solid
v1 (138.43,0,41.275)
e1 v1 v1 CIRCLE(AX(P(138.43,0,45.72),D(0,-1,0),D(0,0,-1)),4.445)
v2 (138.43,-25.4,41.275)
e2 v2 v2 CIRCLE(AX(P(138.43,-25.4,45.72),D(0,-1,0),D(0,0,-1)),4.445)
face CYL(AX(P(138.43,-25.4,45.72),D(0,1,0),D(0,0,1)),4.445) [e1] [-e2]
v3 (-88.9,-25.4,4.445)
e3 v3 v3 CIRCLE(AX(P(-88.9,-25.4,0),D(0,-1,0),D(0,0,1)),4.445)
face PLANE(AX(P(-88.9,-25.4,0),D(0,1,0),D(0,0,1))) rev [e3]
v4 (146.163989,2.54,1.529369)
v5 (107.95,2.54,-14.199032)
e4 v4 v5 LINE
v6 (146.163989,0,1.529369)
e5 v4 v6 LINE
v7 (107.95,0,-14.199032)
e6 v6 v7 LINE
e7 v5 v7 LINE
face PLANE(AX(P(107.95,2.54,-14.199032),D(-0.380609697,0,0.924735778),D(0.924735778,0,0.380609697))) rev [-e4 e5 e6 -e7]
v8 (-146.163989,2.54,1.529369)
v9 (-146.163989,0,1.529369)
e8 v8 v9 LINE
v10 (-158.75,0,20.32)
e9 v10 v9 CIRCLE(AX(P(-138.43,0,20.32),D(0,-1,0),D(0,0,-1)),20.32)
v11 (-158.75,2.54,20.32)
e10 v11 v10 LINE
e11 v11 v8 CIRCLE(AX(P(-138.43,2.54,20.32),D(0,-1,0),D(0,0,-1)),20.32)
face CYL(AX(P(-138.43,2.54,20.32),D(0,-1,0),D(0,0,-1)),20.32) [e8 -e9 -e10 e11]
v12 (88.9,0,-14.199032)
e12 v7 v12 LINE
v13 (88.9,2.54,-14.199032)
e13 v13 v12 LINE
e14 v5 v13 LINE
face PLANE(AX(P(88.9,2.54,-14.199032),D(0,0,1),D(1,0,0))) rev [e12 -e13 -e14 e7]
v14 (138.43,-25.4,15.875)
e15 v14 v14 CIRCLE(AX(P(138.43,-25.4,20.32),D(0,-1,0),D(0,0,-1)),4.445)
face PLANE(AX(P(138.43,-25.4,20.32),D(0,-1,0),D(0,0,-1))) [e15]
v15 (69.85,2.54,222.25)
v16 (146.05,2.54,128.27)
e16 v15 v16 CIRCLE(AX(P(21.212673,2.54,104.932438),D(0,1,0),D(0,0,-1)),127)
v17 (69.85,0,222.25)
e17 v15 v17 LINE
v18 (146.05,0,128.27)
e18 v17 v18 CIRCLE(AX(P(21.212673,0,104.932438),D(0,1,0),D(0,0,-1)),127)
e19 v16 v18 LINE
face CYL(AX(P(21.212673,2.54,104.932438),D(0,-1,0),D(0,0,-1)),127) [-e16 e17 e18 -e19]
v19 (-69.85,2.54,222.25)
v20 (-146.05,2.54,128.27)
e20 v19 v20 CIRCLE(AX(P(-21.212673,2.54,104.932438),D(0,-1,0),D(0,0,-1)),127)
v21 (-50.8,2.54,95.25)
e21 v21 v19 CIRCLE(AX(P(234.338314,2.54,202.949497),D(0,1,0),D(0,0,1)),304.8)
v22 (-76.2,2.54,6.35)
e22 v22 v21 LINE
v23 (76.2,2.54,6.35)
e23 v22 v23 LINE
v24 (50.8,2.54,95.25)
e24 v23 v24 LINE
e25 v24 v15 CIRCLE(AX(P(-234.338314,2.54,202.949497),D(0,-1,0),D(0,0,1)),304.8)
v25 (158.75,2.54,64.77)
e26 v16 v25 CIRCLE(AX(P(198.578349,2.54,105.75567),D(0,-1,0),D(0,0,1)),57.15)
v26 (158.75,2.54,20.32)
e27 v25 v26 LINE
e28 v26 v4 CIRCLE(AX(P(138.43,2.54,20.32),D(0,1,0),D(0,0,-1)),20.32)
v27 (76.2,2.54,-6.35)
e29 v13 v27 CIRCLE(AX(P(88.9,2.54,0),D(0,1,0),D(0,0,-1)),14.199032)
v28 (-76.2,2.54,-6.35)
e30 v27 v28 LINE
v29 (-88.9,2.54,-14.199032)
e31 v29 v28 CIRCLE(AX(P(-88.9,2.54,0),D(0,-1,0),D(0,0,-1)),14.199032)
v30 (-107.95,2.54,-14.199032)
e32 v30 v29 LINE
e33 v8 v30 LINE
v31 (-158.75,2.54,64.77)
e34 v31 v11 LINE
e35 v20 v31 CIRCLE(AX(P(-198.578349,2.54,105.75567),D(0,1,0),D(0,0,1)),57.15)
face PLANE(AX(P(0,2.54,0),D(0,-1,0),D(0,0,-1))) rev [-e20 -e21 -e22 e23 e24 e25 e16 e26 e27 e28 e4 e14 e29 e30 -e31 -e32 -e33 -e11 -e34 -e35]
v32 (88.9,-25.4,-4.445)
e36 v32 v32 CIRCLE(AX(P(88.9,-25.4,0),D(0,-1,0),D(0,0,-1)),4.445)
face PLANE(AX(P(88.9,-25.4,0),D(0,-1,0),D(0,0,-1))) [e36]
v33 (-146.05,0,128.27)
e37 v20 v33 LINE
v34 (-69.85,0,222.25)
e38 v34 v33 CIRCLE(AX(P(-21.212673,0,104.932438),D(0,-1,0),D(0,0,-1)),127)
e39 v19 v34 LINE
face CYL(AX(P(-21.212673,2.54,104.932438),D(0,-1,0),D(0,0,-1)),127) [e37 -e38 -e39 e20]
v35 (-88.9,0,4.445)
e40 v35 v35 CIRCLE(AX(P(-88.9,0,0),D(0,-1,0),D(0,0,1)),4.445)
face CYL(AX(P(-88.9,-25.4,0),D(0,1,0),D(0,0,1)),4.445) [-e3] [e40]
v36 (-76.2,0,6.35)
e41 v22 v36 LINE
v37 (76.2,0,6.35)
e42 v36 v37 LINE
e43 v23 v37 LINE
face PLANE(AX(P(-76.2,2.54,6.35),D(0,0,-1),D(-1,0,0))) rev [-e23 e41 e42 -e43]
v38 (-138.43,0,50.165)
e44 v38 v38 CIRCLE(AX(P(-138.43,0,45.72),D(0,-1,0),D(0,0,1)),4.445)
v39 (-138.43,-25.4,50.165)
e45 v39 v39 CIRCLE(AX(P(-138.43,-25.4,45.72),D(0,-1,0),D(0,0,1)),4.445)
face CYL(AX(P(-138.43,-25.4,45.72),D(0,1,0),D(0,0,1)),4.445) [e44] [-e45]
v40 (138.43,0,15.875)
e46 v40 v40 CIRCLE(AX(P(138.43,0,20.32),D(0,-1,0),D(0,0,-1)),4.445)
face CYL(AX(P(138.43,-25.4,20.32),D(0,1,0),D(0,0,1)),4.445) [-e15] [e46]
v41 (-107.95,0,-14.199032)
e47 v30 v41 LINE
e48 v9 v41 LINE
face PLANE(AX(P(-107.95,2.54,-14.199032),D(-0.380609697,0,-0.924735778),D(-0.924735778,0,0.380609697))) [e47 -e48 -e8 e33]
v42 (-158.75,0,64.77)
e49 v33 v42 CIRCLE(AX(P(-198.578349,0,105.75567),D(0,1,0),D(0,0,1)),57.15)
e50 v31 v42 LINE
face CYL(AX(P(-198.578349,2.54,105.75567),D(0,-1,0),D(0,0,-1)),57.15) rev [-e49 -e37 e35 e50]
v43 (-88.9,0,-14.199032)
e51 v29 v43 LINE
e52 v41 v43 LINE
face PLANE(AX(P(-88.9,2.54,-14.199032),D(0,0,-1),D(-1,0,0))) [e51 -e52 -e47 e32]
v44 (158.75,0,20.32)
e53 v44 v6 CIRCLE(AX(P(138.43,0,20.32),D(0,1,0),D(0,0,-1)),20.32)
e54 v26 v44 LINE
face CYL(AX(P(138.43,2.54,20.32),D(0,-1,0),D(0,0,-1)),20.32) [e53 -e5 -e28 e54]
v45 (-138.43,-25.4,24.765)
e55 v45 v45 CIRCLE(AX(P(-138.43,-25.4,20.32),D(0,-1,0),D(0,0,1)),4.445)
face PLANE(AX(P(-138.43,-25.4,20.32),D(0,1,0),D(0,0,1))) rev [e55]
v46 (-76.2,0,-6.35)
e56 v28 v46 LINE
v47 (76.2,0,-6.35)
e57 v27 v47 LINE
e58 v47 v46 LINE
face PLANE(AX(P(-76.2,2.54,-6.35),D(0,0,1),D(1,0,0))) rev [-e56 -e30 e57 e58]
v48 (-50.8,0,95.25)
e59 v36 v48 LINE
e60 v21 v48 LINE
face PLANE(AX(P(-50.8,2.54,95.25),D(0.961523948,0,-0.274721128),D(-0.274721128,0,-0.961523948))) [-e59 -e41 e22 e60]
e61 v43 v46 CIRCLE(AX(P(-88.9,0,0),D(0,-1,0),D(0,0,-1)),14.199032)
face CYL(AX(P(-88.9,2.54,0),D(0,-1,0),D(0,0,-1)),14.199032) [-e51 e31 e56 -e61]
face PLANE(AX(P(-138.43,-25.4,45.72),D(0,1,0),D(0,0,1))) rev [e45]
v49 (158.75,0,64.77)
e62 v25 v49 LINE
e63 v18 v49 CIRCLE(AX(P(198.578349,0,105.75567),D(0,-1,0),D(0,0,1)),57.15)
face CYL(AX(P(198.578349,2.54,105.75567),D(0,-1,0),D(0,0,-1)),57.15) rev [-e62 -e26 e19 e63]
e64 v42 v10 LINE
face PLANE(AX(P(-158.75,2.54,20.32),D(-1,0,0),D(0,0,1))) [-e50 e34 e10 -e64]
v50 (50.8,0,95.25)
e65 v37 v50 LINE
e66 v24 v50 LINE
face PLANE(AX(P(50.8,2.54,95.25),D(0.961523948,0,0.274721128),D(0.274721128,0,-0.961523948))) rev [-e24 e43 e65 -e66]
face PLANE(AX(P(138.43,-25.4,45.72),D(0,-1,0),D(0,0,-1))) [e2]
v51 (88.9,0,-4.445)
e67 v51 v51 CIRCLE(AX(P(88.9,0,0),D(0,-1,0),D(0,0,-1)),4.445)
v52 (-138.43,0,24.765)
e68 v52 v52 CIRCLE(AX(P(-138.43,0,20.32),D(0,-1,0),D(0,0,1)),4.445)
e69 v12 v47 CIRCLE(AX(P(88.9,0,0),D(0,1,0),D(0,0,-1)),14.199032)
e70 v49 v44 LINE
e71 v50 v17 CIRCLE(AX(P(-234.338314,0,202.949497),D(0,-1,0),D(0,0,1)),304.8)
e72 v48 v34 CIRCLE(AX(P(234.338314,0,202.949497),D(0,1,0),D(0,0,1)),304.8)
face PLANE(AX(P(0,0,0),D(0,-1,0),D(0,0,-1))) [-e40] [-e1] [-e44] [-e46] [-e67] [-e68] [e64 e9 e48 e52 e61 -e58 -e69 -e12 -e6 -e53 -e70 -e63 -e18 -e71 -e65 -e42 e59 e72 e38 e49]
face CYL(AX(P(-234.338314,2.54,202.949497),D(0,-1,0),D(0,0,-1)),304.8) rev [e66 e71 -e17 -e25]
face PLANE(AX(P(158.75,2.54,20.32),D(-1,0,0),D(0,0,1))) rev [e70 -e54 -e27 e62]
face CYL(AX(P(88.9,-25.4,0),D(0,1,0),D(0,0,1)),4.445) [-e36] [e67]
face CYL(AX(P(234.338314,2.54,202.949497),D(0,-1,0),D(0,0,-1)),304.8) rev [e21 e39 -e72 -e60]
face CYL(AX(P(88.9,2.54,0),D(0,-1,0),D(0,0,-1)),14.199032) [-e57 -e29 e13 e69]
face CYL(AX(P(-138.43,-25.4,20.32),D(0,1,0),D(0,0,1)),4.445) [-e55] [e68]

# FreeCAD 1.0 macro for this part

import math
import FreeCAD as App
import Part
import Sketcher
Q = App.Units.Quantity

doc = App.newDocument("Part")
params = doc.addObject("Spreadsheet::Sheet", "Params")
for row, (alias, value) in enumerate([
    ("sketch1_width", "6 in"),
    ("sketch1_height", "0.5 in"),
    ("pad1_length", "0.1 in"),
    ("sketch2_radius", "12 in"),
    ("sketch2_radius2", "5 in"),
    ("sketch2_radius3", "0.8 in"),
    ("sketch2_radius4", "2.25 in"),
    ("sketch2_height", "0.5 in"),
    ("pad2_length", "0.1 in"),
    ("sketch3_diameter", "0.35 in"),
    ("pad3_length", "1 in"),
], start=1):
    params.set(f"A{row}", alias)
    params.set(f"B{row}", "=" + value)
    params.setAlias(f"B{row}", alias)

body = doc.addObject("PartDesign::Body", "Body")

# Sketch on XZ plane
sketch1 = body.newObject("Sketcher::SketchObject", "Sketch")
sketch1.AttachmentSupport = (doc.getObject("XZ_Plane"), [""])
sketch1.MapMode = "FlatFace"
sketch1.addGeometry([
    Part.LineSegment(App.Vector(-76, -6, 0), App.Vector(-76, 6, 0)),
    Part.LineSegment(App.Vector(-76, 6, 0), App.Vector(76, 6, 0)),
    Part.LineSegment(App.Vector(76, 6, 0), App.Vector(76, -6, 0)),
    Part.LineSegment(App.Vector(76, -6, 0), App.Vector(-76, -6, 0)),
], False)
sketch1.addConstraint([
    Sketcher.Constraint("Coincident", 0, 2, 1, 1),
    Sketcher.Constraint("Coincident", 1, 2, 2, 1),
    Sketcher.Constraint("Coincident", 2, 2, 3, 1),
    Sketcher.Constraint("Coincident", 3, 2, 0, 1),
    Sketcher.Constraint("Vertical", 0),
    Sketcher.Constraint("Horizontal", 1),
    Sketcher.Constraint("Vertical", 2),
    Sketcher.Constraint("Horizontal", 3),
    Sketcher.Constraint("Symmetric", 0, 2, 2, 2, -1, 1),
    Sketcher.Constraint("DistanceX", 1, 1, 1, 2, Q("6 in")),
    Sketcher.Constraint("DistanceY", 0, 1, 0, 2, Q("0.5 in")),
])
sketch1.setExpression("Constraints[9]", "Params.sketch1_width")
sketch1.setExpression("Constraints[10]", "Params.sketch1_height")
pad1 = body.newObject("PartDesign::Pad", "Pad")
pad1.Profile = sketch1
pad1.setExpression("Length", "Params.pad1_length")
pad1.Reversed = True

# Sketch on XZ plane
sketch2 = body.newObject("Sketcher::SketchObject", "Sketch001")
sketch2.AttachmentSupport = (doc.getObject("XZ_Plane"), [""])
sketch2.MapMode = "FlatFace"
sketch2.addGeometry([
    Part.LineSegment(App.Vector(108, -14, 0), App.Vector(89, -14, 0)),  # 0
    Part.ArcOfCircle(Part.Circle(App.Vector(89, 0, 0), App.Vector(0, 0, 1), 14), math.radians(-153), math.radians(-90)),  # 1
    Part.LineSegment(App.Vector(76, -6, 0), App.Vector(76, 6, 0)),  # 2
    Part.LineSegment(App.Vector(76, 6, 0), App.Vector(51, 95, 0)),  # 3
    Part.ArcOfCircle(Part.Circle(App.Vector(-234, 203, 0), App.Vector(0, 0, 1), 305), math.radians(-21), math.radians(4)),  # 4
    Part.ArcOfCircle(Part.Circle(App.Vector(21, 105, 0), App.Vector(0, 0, 1), 127), math.radians(11), math.radians(67)),  # 5
    Part.ArcOfCircle(Part.Circle(App.Vector(199, 106, 0), App.Vector(0, 0, 1), 57), math.radians(157), math.radians(226)),  # 6
    Part.LineSegment(App.Vector(159, 65, 0), App.Vector(159, 20, 0)),  # 7
    Part.ArcOfCircle(Part.Circle(App.Vector(138, 20, 0), App.Vector(0, 0, 1), 20), math.radians(-68), math.radians(0)),  # 8
    Part.LineSegment(App.Vector(146, 2, 0), App.Vector(108, -14, 0)),  # 9
], False)
sketch2.addConstraint([
    Sketcher.Constraint("Tangent", 0, 2, 1, 2),
    Sketcher.Constraint("Coincident", 1, 1, 2, 1),
    Sketcher.Constraint("Coincident", 2, 2, 3, 1),
    Sketcher.Constraint("Coincident", 3, 2, 4, 1),
    Sketcher.Constraint("Coincident", 4, 2, 5, 2),
    Sketcher.Constraint("Coincident", 5, 1, 6, 1),
    Sketcher.Constraint("Coincident", 6, 2, 7, 1),
    Sketcher.Constraint("Tangent", 7, 2, 8, 2),
    Sketcher.Constraint("Tangent", 8, 1, 9, 1),
    Sketcher.Constraint("Coincident", 9, 2, 0, 1),
    Sketcher.Constraint("Horizontal", 0),
    Sketcher.Constraint("Vertical", 2),
    Sketcher.Constraint("Vertical", 7),
    Sketcher.Constraint("PointOnObject", 1, 3, -1),
    Sketcher.Constraint("Radius", 4, Q("12 in")),
    Sketcher.Constraint("Radius", 5, Q("5 in")),
    Sketcher.Constraint("Radius", 8, Q("0.8 in")),
    Sketcher.Constraint("Radius", 6, Q("2.25 in")),
    Sketcher.Constraint("DistanceY", 2, 1, 2, 2, Q("0.5 in")),
    Sketcher.Constraint("DistanceX", -1, 1, 1, 1, Q("3 in")),
    Sketcher.Constraint("DistanceX", -1, 1, 3, 2, Q("2 in")),
    Sketcher.Constraint("DistanceY", 1, 1, 3, 2, Q("4 in")),
    Sketcher.Constraint("DistanceY", 3, 2, 4, 2, Q("5 in")),
    Sketcher.Constraint("DistanceX", 4, 2, 5, 1, Q("3 in")),
    Sketcher.Constraint("DistanceX", 0, 2, 0, 1, Q("0.75 in")),
    Sketcher.Constraint("DistanceY", 7, 2, 7, 1, Q("1.75 in")),
    Sketcher.Constraint("DistanceX", -1, 1, 1, 3, Q("3.5 in")),
    Sketcher.Constraint("DistanceY", -1, 1, 8, 3, Q("0.8 in")),
    Sketcher.Constraint("DistanceX", 4, 2, 8, 3, Q("2.7 in")),
    Sketcher.Constraint("DistanceY", 3, 2, 5, 1, Q("1.3 in")),
    Sketcher.Constraint("DistanceY", 6, 2, 5, 1, Q("2.5 in")),
    Sketcher.Constraint("DistanceX", -1, 1, 8, 3, Q("5.45 in")),
])
sketch2.setExpression("Constraints[14]", "Params.sketch2_radius")
sketch2.setExpression("Constraints[15]", "Params.sketch2_radius2")
sketch2.setExpression("Constraints[16]", "Params.sketch2_radius3")
sketch2.setExpression("Constraints[17]", "Params.sketch2_radius4")
sketch2.setExpression("Constraints[18]", "Params.sketch2_height")
pad2 = body.newObject("PartDesign::Pad", "Pad001")
pad2.Profile = sketch2
pad2.setExpression("Length", "Params.pad2_length")
pad2.Reversed = True
doc.recompute()

mirrored = body.newObject("PartDesign::Mirrored", "Mirrored")
mirrored.Originals = [pad2]
mirrored.MirrorPlane = (doc.getObject("YZ_Plane"), [""])
body.Tip = mirrored

# Sketch on XZ plane
sketch3 = body.newObject("Sketcher::SketchObject", "Sketch002")
sketch3.AttachmentSupport = (doc.getObject("XZ_Plane"), [""])
sketch3.MapMode = "FlatFace"
sketch3.addGeometry([
    Part.Circle(App.Vector(88.9, 0, 0), App.Vector(0, 0, 1), 4.4),  # 0
    Part.Circle(App.Vector(138.4, 20.3, 0), App.Vector(0, 0, 1), 4.4),  # 1
    Part.Circle(App.Vector(138.4, 45.7, 0), App.Vector(0, 0, 1), 4.4),  # 2
    Part.Circle(App.Vector(-138.4, 45.7, 0), App.Vector(0, 0, 1), 4.4),  # 3
    Part.Circle(App.Vector(-138.4, 20.3, 0), App.Vector(0, 0, 1), 4.4),  # 4
    Part.Circle(App.Vector(-88.9, 0, 0), App.Vector(0, 0, 1), 4.4),  # 5
], False)
sketch3.addConstraint([
    Sketcher.Constraint("Equal", 0, 1),
    Sketcher.Constraint("Equal", 1, 2),
    Sketcher.Constraint("Equal", 2, 3),
    Sketcher.Constraint("Equal", 3, 4),
    Sketcher.Constraint("Equal", 4, 5),
    Sketcher.Constraint("Symmetric", 0, 3, 5, 3, -1, 1),
    Sketcher.Constraint("Symmetric", 2, 3, 3, 3, -2),
    Sketcher.Constraint("Symmetric", 1, 3, 4, 3, -2),
    Sketcher.Constraint("PointOnObject", 0, 3, -1),
    Sketcher.Constraint("Vertical", 1, 3, 2, 3),
    Sketcher.Constraint("Diameter", 0, Q("0.35 in")),
    Sketcher.Constraint("DistanceY", 1, 3, 2, 3, Q("1 in")),
    Sketcher.Constraint("DistanceX", 5, 3, 0, 3, Q("7 in")),
    Sketcher.Constraint("DistanceY", -1, 1, 1, 3, Q("0.8 in")),
    Sketcher.Constraint("DistanceX", 3, 3, 2, 3, Q("10.9 in")),
])
sketch3.setExpression("Constraints[10]", "Params.sketch3_diameter")
pad3 = body.newObject("PartDesign::Pad", "Pad002")
pad3.Profile = sketch3
pad3.setExpression("Length", "Params.pad3_length")

doc.recompute()
